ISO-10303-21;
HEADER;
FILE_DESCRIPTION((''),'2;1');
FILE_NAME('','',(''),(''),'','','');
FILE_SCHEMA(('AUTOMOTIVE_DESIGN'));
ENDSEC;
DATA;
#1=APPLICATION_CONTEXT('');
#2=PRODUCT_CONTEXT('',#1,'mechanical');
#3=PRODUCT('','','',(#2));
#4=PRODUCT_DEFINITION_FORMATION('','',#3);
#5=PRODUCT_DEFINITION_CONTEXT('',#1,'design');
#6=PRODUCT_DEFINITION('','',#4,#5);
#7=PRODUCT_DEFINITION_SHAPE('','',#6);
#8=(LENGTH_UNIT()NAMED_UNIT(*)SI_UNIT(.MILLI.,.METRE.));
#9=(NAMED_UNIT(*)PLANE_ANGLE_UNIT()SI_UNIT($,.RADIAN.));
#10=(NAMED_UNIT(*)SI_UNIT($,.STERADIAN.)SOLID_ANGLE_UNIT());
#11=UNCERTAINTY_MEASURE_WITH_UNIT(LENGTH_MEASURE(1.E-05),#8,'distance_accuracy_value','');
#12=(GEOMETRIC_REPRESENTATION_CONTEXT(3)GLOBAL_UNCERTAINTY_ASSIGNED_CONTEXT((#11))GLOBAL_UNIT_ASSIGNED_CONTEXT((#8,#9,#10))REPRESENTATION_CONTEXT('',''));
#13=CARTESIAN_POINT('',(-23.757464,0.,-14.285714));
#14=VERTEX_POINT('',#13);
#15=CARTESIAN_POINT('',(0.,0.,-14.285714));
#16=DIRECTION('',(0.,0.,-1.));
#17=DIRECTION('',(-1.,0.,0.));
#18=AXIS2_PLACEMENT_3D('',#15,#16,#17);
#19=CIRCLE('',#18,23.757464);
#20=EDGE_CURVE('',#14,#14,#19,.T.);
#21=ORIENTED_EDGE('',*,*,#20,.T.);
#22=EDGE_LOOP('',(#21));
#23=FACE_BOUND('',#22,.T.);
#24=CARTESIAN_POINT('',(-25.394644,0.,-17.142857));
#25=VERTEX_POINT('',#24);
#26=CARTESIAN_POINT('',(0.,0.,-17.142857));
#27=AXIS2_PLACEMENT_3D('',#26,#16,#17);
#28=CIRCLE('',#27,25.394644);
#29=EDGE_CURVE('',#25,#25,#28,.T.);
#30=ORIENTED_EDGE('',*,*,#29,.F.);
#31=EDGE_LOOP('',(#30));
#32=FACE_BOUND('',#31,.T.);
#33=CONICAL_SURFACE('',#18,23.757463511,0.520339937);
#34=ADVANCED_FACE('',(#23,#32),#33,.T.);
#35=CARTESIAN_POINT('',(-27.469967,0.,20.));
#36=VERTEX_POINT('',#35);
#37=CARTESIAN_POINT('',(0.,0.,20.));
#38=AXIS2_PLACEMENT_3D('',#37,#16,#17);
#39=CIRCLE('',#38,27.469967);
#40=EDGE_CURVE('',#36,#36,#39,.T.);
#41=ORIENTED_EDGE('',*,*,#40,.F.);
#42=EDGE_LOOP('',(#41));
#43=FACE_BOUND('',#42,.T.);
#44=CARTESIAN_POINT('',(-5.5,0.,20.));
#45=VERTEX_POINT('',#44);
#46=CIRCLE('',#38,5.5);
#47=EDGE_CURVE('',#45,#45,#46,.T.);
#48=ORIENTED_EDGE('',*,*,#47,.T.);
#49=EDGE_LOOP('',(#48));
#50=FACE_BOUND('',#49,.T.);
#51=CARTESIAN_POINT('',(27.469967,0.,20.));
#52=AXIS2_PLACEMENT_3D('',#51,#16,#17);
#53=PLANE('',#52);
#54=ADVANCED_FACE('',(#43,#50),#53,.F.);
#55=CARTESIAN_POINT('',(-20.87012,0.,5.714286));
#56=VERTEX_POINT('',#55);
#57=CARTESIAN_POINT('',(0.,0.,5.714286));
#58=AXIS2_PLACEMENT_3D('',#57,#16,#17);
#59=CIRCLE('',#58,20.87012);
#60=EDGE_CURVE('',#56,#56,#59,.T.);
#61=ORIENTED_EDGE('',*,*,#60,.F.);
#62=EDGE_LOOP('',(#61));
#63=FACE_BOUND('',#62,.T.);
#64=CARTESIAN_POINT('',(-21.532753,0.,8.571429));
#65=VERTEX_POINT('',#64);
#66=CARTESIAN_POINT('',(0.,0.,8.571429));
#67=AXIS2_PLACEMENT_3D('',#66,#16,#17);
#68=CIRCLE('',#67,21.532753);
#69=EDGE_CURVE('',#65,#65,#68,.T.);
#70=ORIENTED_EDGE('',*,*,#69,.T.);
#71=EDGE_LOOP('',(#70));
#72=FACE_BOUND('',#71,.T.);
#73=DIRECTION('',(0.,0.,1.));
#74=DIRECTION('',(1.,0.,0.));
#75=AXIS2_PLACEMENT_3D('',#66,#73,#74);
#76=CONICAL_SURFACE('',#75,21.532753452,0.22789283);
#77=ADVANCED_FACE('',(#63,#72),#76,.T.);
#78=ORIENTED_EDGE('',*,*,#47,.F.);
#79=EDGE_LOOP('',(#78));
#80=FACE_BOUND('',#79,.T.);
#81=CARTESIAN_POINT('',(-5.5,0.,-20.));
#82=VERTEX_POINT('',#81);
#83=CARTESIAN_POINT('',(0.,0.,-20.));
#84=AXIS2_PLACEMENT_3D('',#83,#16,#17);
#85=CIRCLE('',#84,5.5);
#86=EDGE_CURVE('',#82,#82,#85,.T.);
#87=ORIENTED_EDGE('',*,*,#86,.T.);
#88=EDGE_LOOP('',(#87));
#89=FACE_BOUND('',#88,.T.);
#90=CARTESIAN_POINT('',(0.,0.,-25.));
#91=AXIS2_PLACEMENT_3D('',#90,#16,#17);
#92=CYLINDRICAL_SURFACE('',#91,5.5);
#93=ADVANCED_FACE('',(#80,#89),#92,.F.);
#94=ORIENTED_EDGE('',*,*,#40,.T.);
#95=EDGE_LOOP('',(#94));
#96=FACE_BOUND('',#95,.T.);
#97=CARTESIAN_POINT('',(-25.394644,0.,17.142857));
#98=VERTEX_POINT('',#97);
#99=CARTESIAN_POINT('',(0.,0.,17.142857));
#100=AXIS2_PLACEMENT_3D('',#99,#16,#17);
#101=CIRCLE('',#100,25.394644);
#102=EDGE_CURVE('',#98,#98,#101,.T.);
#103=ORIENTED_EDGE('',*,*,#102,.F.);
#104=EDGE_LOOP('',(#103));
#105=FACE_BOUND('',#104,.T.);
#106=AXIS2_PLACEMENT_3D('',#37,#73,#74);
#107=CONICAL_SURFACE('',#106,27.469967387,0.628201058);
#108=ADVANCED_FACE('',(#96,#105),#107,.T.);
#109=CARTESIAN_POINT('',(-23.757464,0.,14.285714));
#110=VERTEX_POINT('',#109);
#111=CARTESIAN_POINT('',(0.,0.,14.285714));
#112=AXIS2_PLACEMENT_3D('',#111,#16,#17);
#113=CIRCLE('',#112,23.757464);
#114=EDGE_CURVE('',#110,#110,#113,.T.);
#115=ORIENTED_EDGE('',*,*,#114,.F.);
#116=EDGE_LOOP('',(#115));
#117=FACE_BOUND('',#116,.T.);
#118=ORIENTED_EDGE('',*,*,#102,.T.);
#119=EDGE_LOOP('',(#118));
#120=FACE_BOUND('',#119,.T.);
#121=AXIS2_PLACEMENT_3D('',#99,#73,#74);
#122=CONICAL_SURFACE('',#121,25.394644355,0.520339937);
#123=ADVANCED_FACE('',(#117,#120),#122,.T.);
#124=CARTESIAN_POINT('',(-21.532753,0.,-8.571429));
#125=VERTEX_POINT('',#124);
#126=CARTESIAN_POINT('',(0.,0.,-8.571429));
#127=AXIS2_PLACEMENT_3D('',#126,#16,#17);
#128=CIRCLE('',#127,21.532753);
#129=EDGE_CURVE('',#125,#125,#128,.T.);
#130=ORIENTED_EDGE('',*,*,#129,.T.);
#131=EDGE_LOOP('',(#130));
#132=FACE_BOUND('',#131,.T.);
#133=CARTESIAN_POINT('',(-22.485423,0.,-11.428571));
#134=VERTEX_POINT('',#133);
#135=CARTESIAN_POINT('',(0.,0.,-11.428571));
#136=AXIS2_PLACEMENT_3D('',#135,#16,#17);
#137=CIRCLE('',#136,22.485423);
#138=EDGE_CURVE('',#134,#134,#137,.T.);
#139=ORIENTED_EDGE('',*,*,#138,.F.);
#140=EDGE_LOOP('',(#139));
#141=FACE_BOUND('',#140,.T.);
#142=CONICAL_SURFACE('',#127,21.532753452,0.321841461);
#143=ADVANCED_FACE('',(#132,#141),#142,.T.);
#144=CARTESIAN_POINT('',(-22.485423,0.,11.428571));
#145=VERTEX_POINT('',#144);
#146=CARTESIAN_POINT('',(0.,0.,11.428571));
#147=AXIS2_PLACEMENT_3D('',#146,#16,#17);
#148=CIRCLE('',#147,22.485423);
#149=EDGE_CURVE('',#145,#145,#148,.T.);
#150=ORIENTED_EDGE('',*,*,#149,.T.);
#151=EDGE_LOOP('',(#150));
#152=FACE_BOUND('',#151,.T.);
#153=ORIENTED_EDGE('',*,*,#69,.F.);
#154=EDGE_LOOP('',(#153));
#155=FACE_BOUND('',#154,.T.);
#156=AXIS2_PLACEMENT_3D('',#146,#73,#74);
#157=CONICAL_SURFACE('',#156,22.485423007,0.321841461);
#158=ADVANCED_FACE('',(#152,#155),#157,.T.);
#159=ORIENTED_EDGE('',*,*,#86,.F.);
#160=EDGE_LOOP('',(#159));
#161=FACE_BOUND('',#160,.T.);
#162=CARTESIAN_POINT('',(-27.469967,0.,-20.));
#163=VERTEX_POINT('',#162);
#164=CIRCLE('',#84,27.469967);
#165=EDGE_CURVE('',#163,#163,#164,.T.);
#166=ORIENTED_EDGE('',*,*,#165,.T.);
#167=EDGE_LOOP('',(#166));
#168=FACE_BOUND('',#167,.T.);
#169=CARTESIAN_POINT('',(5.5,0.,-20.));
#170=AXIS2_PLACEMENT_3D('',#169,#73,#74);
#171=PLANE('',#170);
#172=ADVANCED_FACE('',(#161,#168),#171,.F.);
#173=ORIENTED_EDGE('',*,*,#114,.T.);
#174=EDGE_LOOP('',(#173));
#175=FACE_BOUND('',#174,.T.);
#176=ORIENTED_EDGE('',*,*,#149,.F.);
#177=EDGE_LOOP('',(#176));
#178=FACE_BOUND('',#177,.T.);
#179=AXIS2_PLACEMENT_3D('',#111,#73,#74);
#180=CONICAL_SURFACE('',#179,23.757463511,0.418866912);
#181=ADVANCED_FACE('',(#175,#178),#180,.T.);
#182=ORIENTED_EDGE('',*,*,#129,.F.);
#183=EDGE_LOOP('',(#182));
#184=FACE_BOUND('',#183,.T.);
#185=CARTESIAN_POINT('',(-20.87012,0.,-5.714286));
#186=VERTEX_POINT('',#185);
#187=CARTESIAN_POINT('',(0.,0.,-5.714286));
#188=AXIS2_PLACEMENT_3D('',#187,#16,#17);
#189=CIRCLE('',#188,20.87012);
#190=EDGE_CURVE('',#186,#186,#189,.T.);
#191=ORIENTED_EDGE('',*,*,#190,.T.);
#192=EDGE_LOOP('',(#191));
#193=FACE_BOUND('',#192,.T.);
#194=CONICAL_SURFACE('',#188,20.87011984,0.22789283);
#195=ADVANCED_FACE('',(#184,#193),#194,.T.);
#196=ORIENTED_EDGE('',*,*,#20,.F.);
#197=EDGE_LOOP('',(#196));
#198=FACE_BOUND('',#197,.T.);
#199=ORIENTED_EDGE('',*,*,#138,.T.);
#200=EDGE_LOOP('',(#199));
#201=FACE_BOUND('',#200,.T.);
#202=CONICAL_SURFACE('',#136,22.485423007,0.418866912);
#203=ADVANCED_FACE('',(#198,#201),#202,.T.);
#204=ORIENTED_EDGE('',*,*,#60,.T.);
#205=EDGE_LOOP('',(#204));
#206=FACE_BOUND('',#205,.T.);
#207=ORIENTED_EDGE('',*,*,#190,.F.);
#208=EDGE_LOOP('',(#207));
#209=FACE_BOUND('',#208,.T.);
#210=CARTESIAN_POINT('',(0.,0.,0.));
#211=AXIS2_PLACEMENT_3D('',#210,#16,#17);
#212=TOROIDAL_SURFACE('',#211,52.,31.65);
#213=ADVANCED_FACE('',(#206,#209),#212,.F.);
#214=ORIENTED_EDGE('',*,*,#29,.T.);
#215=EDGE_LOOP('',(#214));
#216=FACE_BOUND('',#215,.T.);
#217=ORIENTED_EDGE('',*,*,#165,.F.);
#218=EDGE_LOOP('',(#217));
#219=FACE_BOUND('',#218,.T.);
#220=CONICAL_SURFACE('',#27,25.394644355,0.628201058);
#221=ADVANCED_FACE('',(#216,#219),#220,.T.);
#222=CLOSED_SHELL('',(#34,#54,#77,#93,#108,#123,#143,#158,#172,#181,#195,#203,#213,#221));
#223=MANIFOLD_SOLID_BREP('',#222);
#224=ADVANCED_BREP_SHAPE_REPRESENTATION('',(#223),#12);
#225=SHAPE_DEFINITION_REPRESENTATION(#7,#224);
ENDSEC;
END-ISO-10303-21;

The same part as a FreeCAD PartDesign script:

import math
import FreeCAD as App
import Part
import Sketcher
Q = App.Units.Quantity

doc = App.newDocument("Part")
body = doc.addObject("PartDesign::Body", "Body")

# Sketch on XZ plane
sketch1 = body.newObject("Sketcher::SketchObject", "Sketch")
sketch1.AttachmentSupport = (doc.getObject("XZ_Plane"), [""])
sketch1.MapMode = "FlatFace"
sketch1.addGeometry(Part.LineSegment(App.Vector(5.5, -20, 0), App.Vector(5.5, 20, 0)), False)
sketch1.addGeometry(Part.LineSegment(App.Vector(5.5, 20, 0), App.Vector(27.5, 20, 0)), False)
sketch1.addGeometry(Part.LineSegment(App.Vector(27.5, 20, 0), App.Vector(25.4, 17.1, 0)), False)
sketch1.addGeometry(Part.LineSegment(App.Vector(25.4, 17.1, 0), App.Vector(23.8, 14.3, 0)), False)
sketch1.addGeometry(Part.LineSegment(App.Vector(23.8, 14.3, 0), App.Vector(22.5, 11.4, 0)), False)
sketch1.addGeometry(Part.LineSegment(App.Vector(22.5, 11.4, 0), App.Vector(21.5, 8.6, 0)), False)
sketch1.addGeometry(Part.LineSegment(App.Vector(21.5, 8.6, 0), App.Vector(20.9, 5.7, 0)), False)
sketch1.addGeometry(Part.ArcOfCircle(Part.Circle(App.Vector(52, 0, 0), App.Vector(0, 0, 1), 31.6), math.radians(170), math.radians(190)), False)
sketch1.addGeometry(Part.LineSegment(App.Vector(20.9, -5.7, 0), App.Vector(21.5, -8.6, 0)), False)
sketch1.addGeometry(Part.LineSegment(App.Vector(21.5, -8.6, 0), App.Vector(22.5, -11.4, 0)), False)
sketch1.addGeometry(Part.LineSegment(App.Vector(22.5, -11.4, 0), App.Vector(23.8, -14.3, 0)), False)
sketch1.addGeometry(Part.LineSegment(App.Vector(23.8, -14.3, 0), App.Vector(25.4, -17.1, 0)), False)
sketch1.addGeometry(Part.LineSegment(App.Vector(25.4, -17.1, 0), App.Vector(27.5, -20, 0)), False)
sketch1.addGeometry(Part.LineSegment(App.Vector(27.5, -20, 0), App.Vector(5.5, -20, 0)), False)
sketch1.addConstraint(Sketcher.Constraint("Coincident", 0, 2, 1, 1))
sketch1.addConstraint(Sketcher.Constraint("Coincident", 1, 2, 2, 1))
sketch1.addConstraint(Sketcher.Constraint("Coincident", 2, 2, 3, 1))
sketch1.addConstraint(Sketcher.Constraint("Coincident", 3, 2, 4, 1))
sketch1.addConstraint(Sketcher.Constraint("Coincident", 4, 2, 5, 1))
sketch1.addConstraint(Sketcher.Constraint("Coincident", 5, 2, 6, 1))
sketch1.addConstraint(Sketcher.Constraint("Coincident", 6, 2, 7, 1))
sketch1.addConstraint(Sketcher.Constraint("Coincident", 7, 2, 8, 1))
sketch1.addConstraint(Sketcher.Constraint("Coincident", 8, 2, 9, 1))
sketch1.addConstraint(Sketcher.Constraint("Coincident", 9, 2, 10, 1))
sketch1.addConstraint(Sketcher.Constraint("Coincident", 10, 2, 11, 1))
sketch1.addConstraint(Sketcher.Constraint("Coincident", 11, 2, 12, 1))
sketch1.addConstraint(Sketcher.Constraint("Coincident", 12, 2, 13, 1))
sketch1.addConstraint(Sketcher.Constraint("Coincident", 13, 2, 0, 1))
sketch1.addConstraint(Sketcher.Constraint("Vertical", 0))
sketch1.addConstraint(Sketcher.Constraint("Horizontal", 1))
sketch1.addConstraint(Sketcher.Constraint("Horizontal", 13))
sketch1.addConstraint(Sketcher.Constraint("Symmetric", 6, 2, 7, 2, -1))
sketch1.addConstraint(Sketcher.Constraint("Symmetric", 5, 2, 8, 2, -1))
sketch1.addConstraint(Sketcher.Constraint("Symmetric", 4, 2, 9, 2, -1))
sketch1.addConstraint(Sketcher.Constraint("Symmetric", 3, 2, 10, 2, -1))
sketch1.addConstraint(Sketcher.Constraint("Symmetric", 2, 2, 11, 2, -1))
sketch1.addConstraint(Sketcher.Constraint("Symmetric", 1, 2, 12, 2, -1))
sketch1.addConstraint(Sketcher.Constraint("DistanceY", 0, 1, 0, 2, Q("40 mm")))
sketch1.addConstraint(Sketcher.Constraint("Radius", 7, Q("31.65 mm")))
sketch1.addConstraint(Sketcher.Constraint("DistanceX", -1, 1, 7, 3, Q("52 mm")))
sketch1.addConstraint(Sketcher.Constraint("DistanceY", 7, 2, 3, 2, Q("20 mm")))
sketch1.addConstraint(Sketcher.Constraint("DistanceY", 8, 2, 4, 2, Q("20 mm")))
sketch1.addConstraint(Sketcher.Constraint("DistanceX", -1, 1, 0, 2, Q("5.5 mm")))
sketch1.addConstraint(Sketcher.Constraint("Distance", 2, Q("3.531321 mm")))
sketch1.addConstraint(Sketcher.Constraint("DistanceX", 1, 1, 1, 2, Q("21.969967 mm")))
sketch1.addConstraint(Sketcher.Constraint("DistanceY", -1, 1, 4, 2, Q("11.428571 mm")))
sketch1.addConstraint(Sketcher.Constraint("DistanceX", -1, 1, 6, 2, Q("20.87012 mm")))
sketch1.addConstraint(Sketcher.Constraint("DistanceX", 3, 2, 2, 2, Q("1.637181 mm")))
sketch1.addConstraint(Sketcher.Constraint("DistanceX", 4, 2, 3, 2, Q("1.272041 mm")))
sketch1.addConstraint(Sketcher.Constraint("DistanceX", 5, 2, 4, 2, Q("0.95267 mm")))
sketch1.addConstraint(Sketcher.Constraint("DistanceY", 5, 2, 2, 2, Q("8.571429 mm")))
revolution = body.newObject("PartDesign::Revolution", "Revolution")
revolution.Profile = sketch1
revolution.ReferenceAxis = (sketch1, ["V_Axis"])
revolution.Angle = 360

doc.recompute()
